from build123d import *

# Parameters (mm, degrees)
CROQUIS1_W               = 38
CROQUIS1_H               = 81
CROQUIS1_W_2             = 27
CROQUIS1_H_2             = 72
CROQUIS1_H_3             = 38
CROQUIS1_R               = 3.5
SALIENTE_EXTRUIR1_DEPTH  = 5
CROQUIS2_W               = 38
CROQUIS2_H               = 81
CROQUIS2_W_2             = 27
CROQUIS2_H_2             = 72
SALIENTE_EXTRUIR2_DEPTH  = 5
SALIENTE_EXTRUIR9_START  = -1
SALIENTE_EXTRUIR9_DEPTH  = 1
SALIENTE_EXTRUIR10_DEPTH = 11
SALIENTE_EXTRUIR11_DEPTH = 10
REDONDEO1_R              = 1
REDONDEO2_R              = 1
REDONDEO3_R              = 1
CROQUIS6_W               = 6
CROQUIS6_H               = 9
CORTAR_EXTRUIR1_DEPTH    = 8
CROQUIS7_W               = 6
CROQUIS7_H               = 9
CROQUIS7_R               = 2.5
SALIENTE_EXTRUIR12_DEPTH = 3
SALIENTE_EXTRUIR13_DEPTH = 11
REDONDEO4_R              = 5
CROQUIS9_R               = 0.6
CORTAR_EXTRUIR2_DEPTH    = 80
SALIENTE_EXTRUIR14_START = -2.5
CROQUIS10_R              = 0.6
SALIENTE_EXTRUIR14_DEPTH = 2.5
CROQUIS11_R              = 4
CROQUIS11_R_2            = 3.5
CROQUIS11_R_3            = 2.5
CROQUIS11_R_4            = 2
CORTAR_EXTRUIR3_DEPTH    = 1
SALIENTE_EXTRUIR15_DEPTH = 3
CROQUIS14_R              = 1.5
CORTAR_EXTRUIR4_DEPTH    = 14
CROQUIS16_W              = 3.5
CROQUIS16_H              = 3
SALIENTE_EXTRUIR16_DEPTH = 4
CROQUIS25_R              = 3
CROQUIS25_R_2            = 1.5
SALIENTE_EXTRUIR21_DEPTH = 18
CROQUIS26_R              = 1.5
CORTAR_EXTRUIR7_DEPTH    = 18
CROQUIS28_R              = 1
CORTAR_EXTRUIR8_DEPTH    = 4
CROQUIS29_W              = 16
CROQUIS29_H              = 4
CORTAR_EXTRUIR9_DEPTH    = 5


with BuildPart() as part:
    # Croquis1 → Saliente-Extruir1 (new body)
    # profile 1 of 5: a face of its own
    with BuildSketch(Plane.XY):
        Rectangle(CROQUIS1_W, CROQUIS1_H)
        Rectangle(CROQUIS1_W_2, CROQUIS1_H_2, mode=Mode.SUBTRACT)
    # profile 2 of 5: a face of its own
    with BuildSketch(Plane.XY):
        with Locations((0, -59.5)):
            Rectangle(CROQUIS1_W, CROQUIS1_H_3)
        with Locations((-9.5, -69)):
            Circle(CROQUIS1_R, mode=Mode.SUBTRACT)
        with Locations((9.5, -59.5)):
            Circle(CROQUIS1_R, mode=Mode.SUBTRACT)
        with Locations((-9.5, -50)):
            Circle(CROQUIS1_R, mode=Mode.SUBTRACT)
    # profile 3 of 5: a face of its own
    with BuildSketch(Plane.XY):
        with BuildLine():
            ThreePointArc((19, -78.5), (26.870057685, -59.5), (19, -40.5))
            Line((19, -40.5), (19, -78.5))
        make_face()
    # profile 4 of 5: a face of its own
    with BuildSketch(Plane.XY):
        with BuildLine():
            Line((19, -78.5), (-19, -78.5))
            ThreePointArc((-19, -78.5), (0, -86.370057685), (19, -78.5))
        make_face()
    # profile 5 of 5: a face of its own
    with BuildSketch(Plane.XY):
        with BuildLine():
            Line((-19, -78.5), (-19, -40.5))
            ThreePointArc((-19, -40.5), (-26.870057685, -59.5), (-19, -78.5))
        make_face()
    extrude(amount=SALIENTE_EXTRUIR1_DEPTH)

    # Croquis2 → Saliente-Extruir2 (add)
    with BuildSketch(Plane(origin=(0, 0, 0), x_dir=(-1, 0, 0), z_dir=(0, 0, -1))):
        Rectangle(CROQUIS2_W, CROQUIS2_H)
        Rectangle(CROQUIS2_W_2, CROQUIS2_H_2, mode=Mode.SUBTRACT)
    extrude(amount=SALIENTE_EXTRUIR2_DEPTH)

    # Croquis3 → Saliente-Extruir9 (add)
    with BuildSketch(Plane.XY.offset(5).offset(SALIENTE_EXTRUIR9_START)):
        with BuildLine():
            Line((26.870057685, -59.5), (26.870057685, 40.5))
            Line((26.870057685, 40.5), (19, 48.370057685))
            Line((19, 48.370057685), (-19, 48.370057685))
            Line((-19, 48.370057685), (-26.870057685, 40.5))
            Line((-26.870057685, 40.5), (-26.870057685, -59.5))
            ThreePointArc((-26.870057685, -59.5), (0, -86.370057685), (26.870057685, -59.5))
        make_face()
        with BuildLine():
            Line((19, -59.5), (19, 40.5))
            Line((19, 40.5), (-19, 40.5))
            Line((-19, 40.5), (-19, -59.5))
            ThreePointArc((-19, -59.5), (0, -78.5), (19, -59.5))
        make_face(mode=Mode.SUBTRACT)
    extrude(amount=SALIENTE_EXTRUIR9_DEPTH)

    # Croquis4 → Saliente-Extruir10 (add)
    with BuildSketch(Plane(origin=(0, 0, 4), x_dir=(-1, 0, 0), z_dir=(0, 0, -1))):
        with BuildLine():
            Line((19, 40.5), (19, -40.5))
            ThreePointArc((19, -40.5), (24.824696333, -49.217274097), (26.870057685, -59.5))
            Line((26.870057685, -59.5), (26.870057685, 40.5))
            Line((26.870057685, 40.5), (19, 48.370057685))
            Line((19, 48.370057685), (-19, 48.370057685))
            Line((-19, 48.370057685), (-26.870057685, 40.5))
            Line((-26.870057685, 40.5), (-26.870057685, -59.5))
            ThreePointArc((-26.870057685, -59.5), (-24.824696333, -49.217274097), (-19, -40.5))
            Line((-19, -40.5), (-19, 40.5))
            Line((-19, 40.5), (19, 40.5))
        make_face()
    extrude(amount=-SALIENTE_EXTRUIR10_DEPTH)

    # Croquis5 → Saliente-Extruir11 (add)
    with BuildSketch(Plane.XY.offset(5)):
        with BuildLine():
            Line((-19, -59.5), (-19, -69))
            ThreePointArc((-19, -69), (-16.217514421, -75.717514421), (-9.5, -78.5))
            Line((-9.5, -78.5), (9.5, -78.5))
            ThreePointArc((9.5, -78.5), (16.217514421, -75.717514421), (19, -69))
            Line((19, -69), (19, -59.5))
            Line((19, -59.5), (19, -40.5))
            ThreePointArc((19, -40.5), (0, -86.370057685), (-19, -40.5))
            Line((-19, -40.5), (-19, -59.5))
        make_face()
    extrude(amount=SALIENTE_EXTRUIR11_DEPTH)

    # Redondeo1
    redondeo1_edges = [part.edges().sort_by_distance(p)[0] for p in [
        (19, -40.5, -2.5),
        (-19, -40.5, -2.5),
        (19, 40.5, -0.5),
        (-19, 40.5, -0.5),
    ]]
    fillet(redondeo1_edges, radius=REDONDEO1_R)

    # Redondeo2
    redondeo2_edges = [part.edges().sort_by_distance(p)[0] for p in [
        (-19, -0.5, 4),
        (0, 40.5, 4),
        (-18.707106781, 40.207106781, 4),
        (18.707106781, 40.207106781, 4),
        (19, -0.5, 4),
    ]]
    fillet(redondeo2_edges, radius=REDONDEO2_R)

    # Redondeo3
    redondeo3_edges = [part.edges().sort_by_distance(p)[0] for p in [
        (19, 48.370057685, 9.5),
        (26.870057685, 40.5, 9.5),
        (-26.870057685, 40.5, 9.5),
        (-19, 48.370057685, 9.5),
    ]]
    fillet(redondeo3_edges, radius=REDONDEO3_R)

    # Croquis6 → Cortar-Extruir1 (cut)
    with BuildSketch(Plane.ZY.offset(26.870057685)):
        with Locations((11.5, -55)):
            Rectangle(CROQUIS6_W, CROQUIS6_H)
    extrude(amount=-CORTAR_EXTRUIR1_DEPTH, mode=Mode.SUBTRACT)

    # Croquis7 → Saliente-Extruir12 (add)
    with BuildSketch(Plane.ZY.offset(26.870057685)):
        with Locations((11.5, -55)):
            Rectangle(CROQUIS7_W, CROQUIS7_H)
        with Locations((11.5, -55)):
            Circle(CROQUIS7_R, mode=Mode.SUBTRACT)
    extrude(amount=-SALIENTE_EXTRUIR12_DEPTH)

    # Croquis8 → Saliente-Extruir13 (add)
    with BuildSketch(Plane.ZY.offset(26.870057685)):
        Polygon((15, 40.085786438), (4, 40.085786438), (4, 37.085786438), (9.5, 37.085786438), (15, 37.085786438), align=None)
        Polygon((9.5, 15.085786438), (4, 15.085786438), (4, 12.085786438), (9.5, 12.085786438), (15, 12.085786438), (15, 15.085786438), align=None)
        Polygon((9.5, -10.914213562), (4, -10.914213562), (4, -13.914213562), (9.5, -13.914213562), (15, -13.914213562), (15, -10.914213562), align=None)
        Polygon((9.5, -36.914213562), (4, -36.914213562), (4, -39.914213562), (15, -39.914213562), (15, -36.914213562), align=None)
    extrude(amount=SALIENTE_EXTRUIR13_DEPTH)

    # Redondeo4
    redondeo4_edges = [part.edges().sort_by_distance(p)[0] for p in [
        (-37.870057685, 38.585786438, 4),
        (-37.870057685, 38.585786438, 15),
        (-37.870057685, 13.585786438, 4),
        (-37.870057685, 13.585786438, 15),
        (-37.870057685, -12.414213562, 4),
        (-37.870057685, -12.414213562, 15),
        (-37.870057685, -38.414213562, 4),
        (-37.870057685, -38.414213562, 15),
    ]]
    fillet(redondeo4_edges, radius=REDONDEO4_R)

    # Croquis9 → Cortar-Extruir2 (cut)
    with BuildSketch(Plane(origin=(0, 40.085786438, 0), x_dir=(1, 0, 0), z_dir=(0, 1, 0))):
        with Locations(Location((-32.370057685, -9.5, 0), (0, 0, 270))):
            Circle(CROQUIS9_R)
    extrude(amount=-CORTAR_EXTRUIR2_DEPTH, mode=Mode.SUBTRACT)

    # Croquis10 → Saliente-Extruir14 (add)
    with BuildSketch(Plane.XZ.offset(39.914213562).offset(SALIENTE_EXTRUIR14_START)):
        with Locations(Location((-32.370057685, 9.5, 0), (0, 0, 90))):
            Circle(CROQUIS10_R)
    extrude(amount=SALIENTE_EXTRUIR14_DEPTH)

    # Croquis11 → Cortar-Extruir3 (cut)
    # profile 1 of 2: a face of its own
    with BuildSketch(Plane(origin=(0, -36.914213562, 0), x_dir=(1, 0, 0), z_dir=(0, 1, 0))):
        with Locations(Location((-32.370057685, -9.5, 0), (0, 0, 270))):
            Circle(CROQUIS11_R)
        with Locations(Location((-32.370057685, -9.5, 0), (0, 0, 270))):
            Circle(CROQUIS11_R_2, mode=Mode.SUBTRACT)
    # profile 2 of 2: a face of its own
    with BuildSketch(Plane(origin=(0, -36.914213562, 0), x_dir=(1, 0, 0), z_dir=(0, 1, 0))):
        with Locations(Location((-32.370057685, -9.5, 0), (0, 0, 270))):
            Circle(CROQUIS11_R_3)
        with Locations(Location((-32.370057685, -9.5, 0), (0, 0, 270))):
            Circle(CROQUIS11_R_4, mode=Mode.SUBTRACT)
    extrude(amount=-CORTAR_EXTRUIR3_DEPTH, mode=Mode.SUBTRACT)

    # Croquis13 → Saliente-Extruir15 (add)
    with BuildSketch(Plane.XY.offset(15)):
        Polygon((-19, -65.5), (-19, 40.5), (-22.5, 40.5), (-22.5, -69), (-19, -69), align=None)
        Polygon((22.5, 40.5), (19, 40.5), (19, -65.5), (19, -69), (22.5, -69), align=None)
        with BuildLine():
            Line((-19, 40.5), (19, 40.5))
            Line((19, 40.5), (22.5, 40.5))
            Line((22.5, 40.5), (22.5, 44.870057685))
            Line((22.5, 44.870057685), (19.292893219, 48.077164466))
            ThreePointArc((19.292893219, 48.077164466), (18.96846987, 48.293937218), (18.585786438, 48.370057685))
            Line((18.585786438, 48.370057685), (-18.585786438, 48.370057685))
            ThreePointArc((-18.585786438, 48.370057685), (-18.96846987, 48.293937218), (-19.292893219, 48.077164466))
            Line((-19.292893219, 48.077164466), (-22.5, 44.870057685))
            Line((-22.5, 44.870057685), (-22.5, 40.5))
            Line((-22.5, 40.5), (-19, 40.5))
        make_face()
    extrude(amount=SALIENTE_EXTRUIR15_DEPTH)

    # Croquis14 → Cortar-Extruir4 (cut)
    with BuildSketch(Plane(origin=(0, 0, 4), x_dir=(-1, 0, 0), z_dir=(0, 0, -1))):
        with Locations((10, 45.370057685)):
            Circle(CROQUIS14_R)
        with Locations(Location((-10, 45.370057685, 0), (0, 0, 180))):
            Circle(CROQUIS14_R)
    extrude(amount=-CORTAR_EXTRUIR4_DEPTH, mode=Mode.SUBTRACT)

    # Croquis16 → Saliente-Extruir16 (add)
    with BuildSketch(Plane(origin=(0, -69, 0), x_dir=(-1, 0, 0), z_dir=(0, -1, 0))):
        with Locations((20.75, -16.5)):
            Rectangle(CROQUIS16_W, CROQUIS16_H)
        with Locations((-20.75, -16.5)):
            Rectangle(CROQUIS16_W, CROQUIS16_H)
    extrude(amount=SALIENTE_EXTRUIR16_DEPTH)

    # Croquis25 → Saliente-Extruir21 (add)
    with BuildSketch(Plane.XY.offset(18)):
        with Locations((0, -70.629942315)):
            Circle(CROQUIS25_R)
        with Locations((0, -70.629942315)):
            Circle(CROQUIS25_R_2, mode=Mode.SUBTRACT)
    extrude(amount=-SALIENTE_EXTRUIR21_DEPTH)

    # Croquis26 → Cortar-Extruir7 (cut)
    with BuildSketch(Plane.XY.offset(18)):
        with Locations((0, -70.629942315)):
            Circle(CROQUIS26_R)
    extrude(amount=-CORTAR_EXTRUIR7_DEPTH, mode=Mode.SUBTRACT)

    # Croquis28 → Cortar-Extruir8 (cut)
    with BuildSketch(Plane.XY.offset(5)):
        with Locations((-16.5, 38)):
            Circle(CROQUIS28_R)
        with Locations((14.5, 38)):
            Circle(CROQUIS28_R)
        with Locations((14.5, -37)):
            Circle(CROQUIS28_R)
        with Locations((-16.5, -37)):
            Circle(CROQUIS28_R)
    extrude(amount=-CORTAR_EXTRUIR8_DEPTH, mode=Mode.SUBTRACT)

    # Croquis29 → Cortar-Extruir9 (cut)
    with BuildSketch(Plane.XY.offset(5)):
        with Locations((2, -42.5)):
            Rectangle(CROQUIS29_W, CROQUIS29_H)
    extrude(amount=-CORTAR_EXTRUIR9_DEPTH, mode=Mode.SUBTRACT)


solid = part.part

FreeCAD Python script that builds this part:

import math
import FreeCAD as App
import Part
import Sketcher


def edges_at(feature, points):
    """Names of the edges that pass closest to the given points."""
    edges = feature.Shape.Edges
    near = lambda p: min(range(len(edges)), key=lambda i: edges[i].distToShape(Part.Vertex(*p))[0])
    return sorted({f"Edge{near(p) + 1}" for p in points})

doc = App.newDocument("Part")
body = doc.addObject("PartDesign::Body", "Body")

sketch1 = doc.addObject("Sketcher::SketchObject", "Sketch")
body.addObject(sketch1)
sketch1.AttachmentSupport = (doc.XY_Plane, [""])
sketch1.MapMode = "FlatFace"
sketch1.addGeometry(Part.LineSegment(App.Vector(-19, 40.5, 0), App.Vector(-19, -40.5, 0)), False)
sketch1.addGeometry(Part.ArcOfCircle(Part.Circle(App.Vector(0, -59.5, 0), App.Vector(0, 0, 1), 26.870058), math.radians(135), math.radians(225)), False)
sketch1.addGeometry(Part.ArcOfCircle(Part.Circle(App.Vector(0, -59.5, 0), App.Vector(0, 0, 1), 26.870058), math.radians(-135), math.radians(-45)), False)
sketch1.addGeometry(Part.ArcOfCircle(Part.Circle(App.Vector(0, -59.5, 0), App.Vector(0, 0, 1), 26.870058), math.radians(-45), math.radians(45)), False)
sketch1.addGeometry(Part.LineSegment(App.Vector(19, -40.5, 0), App.Vector(19, 40.5, 0)), False)
sketch1.addGeometry(Part.LineSegment(App.Vector(19, 40.5, 0), App.Vector(-19, 40.5, 0)), False)
sketch1.addGeometry(Part.LineSegment(App.Vector(13.5, -36, 0), App.Vector(-13.5, -36, 0)), False)
sketch1.addGeometry(Part.LineSegment(App.Vector(-13.5, -36, 0), App.Vector(-13.5, 36, 0)), False)
sketch1.addGeometry(Part.LineSegment(App.Vector(-13.5, 36, 0), App.Vector(13.5, 36, 0)), False)
sketch1.addGeometry(Part.LineSegment(App.Vector(13.5, 36, 0), App.Vector(13.5, -36, 0)), False)
sketch1.addGeometry(Part.Circle(App.Vector(9.5, -59.5, 0), App.Vector(0, 0, 1), 3.5), False)
sketch1.addGeometry(Part.Circle(App.Vector(-9.5, -69, 0), App.Vector(0, 0, 1), 3.5), False)
sketch1.addGeometry(Part.Circle(App.Vector(-9.5, -50, 0), App.Vector(0, 0, 1), 3.5), False)
sketch1.addConstraint(Sketcher.Constraint("Coincident", 0, 2, 1, 1))
sketch1.addConstraint(Sketcher.Constraint("Tangent", 1, 2, 2, 1))
sketch1.addConstraint(Sketcher.Constraint("Tangent", 2, 2, 3, 1))
sketch1.addConstraint(Sketcher.Constraint("Coincident", 3, 2, 4, 1))
sketch1.addConstraint(Sketcher.Constraint("Coincident", 4, 2, 5, 1))
sketch1.addConstraint(Sketcher.Constraint("Coincident", 5, 2, 0, 1))
sketch1.addConstraint(Sketcher.Constraint("Coincident", 6, 2, 7, 1))
sketch1.addConstraint(Sketcher.Constraint("Coincident", 7, 2, 8, 1))
sketch1.addConstraint(Sketcher.Constraint("Coincident", 8, 2, 9, 1))
sketch1.addConstraint(Sketcher.Constraint("Coincident", 9, 2, 6, 1))
sketch1.addConstraint(Sketcher.Constraint("Vertical", 0))
sketch1.addConstraint(Sketcher.Constraint("Vertical", 4))
sketch1.addConstraint(Sketcher.Constraint("Horizontal", 5))
sketch1.addConstraint(Sketcher.Constraint("Horizontal", 6))
sketch1.addConstraint(Sketcher.Constraint("Vertical", 7))
sketch1.addConstraint(Sketcher.Constraint("Horizontal", 8))
sketch1.addConstraint(Sketcher.Constraint("Vertical", 9))
sketch1.addConstraint(Sketcher.Constraint("Coincident", 3, 3, 1, 3))
sketch1.addConstraint(Sketcher.Constraint("Equal", 10, 11))
sketch1.addConstraint(Sketcher.Constraint("Equal", 11, 12))
sketch1.addConstraint(Sketcher.Constraint("Symmetric", 0, 2, 4, 2, -1, 1))
sketch1.addConstraint(Sketcher.Constraint("Symmetric", 6, 2, 8, 2, -1, 1))
sketch1.addConstraint(Sketcher.Constraint("Symmetric", 1, 2, 2, 2, -2))
sketch1.addConstraint(Sketcher.Constraint("Horizontal", 3, 3, 10, 3))
sketch1.addConstraint(Sketcher.Constraint("Vertical", 11, 3, 12, 3))
sketch1.addConstraint(Sketcher.Constraint("Vertical", 0, 2, 1, 2))
sketch1.addConstraint(Sketcher.Constraint("Diameter", 10, 7.0))
sketch1.addConstraint(Sketcher.Constraint("DistanceX", 5, 2, 5, 1, 38.0))
sketch1.addConstraint(Sketcher.Constraint("DistanceX", 6, 2, 6, 1, 27.0))
sketch1.addConstraint(Sketcher.Constraint("DistanceY", 0, 2, 0, 1, 81.0))
sketch1.addConstraint(Sketcher.Constraint("DistanceY", 7, 1, 7, 2, 72.0))
sketch1.addConstraint(Sketcher.Constraint("DistanceY", 11, 3, -1, 1, 69.0))
sketch1.addConstraint(Sketcher.Constraint("DistanceY", 12, 3, -1, 1, 50.0))
sketch1.addConstraint(Sketcher.Constraint("DistanceX", 11, 3, 10, 3, 19.0))
sketch1.addConstraint(Sketcher.Constraint("DistanceY", 1, 3, 0, 2, 19.0))
sketch1.addConstraint(Sketcher.Constraint("DistanceX", 6, 2, 12, 3, 4.0))
pad1 = doc.addObject("PartDesign::Pad", "Pad")
body.addObject(pad1)
pad1.Profile = sketch1
pad1.Length = 5

sketch2 = doc.addObject("Sketcher::SketchObject", "Sketch001")
body.addObject(sketch2)
sketch2.AttachmentSupport = (doc.XY_Plane, [""])
sketch2.MapMode = "FlatFace"
sketch2.addGeometry(Part.LineSegment(App.Vector(19, 40.5, 0), App.Vector(19, -40.5, 0)), False)
sketch2.addGeometry(Part.LineSegment(App.Vector(19, -40.5, 0), App.Vector(-19, -40.5, 0)), False)
sketch2.addGeometry(Part.LineSegment(App.Vector(-19, -40.5, 0), App.Vector(-19, 40.5, 0)), False)
sketch2.addGeometry(Part.LineSegment(App.Vector(-19, 40.5, 0), App.Vector(19, 40.5, 0)), False)
sketch2.addGeometry(Part.LineSegment(App.Vector(-13.5, -36, 0), App.Vector(13.5, -36, 0)), False)
sketch2.addGeometry(Part.LineSegment(App.Vector(13.5, -36, 0), App.Vector(13.5, 36, 0)), False)
sketch2.addGeometry(Part.LineSegment(App.Vector(13.5, 36, 0), App.Vector(-13.5, 36, 0)), False)
sketch2.addGeometry(Part.LineSegment(App.Vector(-13.5, 36, 0), App.Vector(-13.5, -36, 0)), False)
sketch2.addConstraint(Sketcher.Constraint("Coincident", 0, 2, 1, 1))
sketch2.addConstraint(Sketcher.Constraint("Coincident", 1, 2, 2, 1))
sketch2.addConstraint(Sketcher.Constraint("Coincident", 2, 2, 3, 1))
sketch2.addConstraint(Sketcher.Constraint("Coincident", 3, 2, 0, 1))
sketch2.addConstraint(Sketcher.Constraint("Coincident", 4, 2, 5, 1))
sketch2.addConstraint(Sketcher.Constraint("Coincident", 5, 2, 6, 1))
sketch2.addConstraint(Sketcher.Constraint("Coincident", 6, 2, 7, 1))
sketch2.addConstraint(Sketcher.Constraint("Coincident", 7, 2, 4, 1))
sketch2.addConstraint(Sketcher.Constraint("Vertical", 0))
sketch2.addConstraint(Sketcher.Constraint("Horizontal", 1))
sketch2.addConstraint(Sketcher.Constraint("Vertical", 2))
sketch2.addConstraint(Sketcher.Constraint("Horizontal", 3))
sketch2.addConstraint(Sketcher.Constraint("Horizontal", 4))
sketch2.addConstraint(Sketcher.Constraint("Vertical", 5))
sketch2.addConstraint(Sketcher.Constraint("Horizontal", 6))
sketch2.addConstraint(Sketcher.Constraint("Vertical", 7))
sketch2.addConstraint(Sketcher.Constraint("Symmetric", 0, 2, 2, 2, -1, 1))
sketch2.addConstraint(Sketcher.Constraint("Symmetric", 4, 2, 6, 2, -1, 1))
sketch2.addConstraint(Sketcher.Constraint("DistanceX", 1, 2, 1, 1, 38.0))
sketch2.addConstraint(Sketcher.Constraint("DistanceX", 4, 1, 4, 2, 27.0))
sketch2.addConstraint(Sketcher.Constraint("DistanceY", 0, 2, 0, 1, 81.0))
sketch2.addConstraint(Sketcher.Constraint("DistanceY", 5, 1, 5, 2, 72.0))
pad2 = doc.addObject("PartDesign::Pad", "Pad001")
body.addObject(pad2)
pad2.Profile = sketch2
pad2.Length = 5
pad2.Reversed = True

sketch3 = doc.addObject("Sketcher::SketchObject", "Sketch002")
body.addObject(sketch3)
sketch3.AttachmentSupport = (doc.XY_Plane, [""])
sketch3.MapMode = "FlatFace"
sketch3.AttachmentOffset = App.Placement(App.Vector(0, 0, 4), App.Rotation())
sketch3.addGeometry(Part.LineSegment(App.Vector(26.870058, -59.5, 0), App.Vector(26.870058, 40.5, 0)), False)
sketch3.addGeometry(Part.LineSegment(App.Vector(26.870058, 40.5, 0), App.Vector(19, 48.370058, 0)), False)
sketch3.addGeometry(Part.LineSegment(App.Vector(19, 48.370058, 0), App.Vector(-19, 48.370058, 0)), False)
sketch3.addGeometry(Part.LineSegment(App.Vector(-19, 48.370058, 0), App.Vector(-26.870058, 40.5, 0)), False)
sketch3.addGeometry(Part.LineSegment(App.Vector(-26.870058, 40.5, 0), App.Vector(-26.870058, -59.5, 0)), False)
sketch3.addGeometry(Part.ArcOfCircle(Part.Circle(App.Vector(0, -59.5, 0), App.Vector(0, 0, 1), 26.870058), math.radians(180), math.radians(360)), False)
sketch3.addGeometry(Part.LineSegment(App.Vector(19, 40.5, 0), App.Vector(19, -59.5, 0)), False)
sketch3.addGeometry(Part.ArcOfCircle(Part.Circle(App.Vector(0, -59.5, 0), App.Vector(0, 0, 1), 19), math.radians(180), math.radians(360)), False)
sketch3.addGeometry(Part.LineSegment(App.Vector(-19, -59.5, 0), App.Vector(-19, 40.5, 0)), False)
sketch3.addGeometry(Part.LineSegment(App.Vector(-19, 40.5, 0), App.Vector(19, 40.5, 0)), False)
sketch3.addConstraint(Sketcher.Constraint("Coincident", 0, 2, 1, 1))
sketch3.addConstraint(Sketcher.Constraint("Coincident", 1, 2, 2, 1))
sketch3.addConstraint(Sketcher.Constraint("Coincident", 2, 2, 3, 1))
sketch3.addConstraint(Sketcher.Constraint("Coincident", 3, 2, 4, 1))
sketch3.addConstraint(Sketcher.Constraint("Tangent", 4, 2, 5, 1))
sketch3.addConstraint(Sketcher.Constraint("Tangent", 5, 2, 0, 1))
sketch3.addConstraint(Sketcher.Constraint("Tangent", 6, 2, 7, 2))
sketch3.addConstraint(Sketcher.Constraint("Tangent", 7, 1, 8, 1))
sketch3.addConstraint(Sketcher.Constraint("Coincident", 8, 2, 9, 1))
sketch3.addConstraint(Sketcher.Constraint("Coincident", 9, 2, 6, 1))
sketch3.addConstraint(Sketcher.Constraint("Vertical", 0))
sketch3.addConstraint(Sketcher.Constraint("Horizontal", 2))
sketch3.addConstraint(Sketcher.Constraint("Vertical", 4))
sketch3.addConstraint(Sketcher.Constraint("Vertical", 6))
sketch3.addConstraint(Sketcher.Constraint("Vertical", 8))
sketch3.addConstraint(Sketcher.Constraint("Horizontal", 9))
sketch3.addConstraint(Sketcher.Constraint("Coincident", 7, 3, 5, 3))
sketch3.addConstraint(Sketcher.Constraint("Symmetric", 0, 2, 3, 2, -2))
sketch3.addConstraint(Sketcher.Constraint("Perpendicular", 1, 3))
sketch3.addConstraint(Sketcher.Constraint("Horizontal", 3, 2, 8, 2))
sketch3.addConstraint(Sketcher.Constraint("Vertical", 1, 2, 6, 2))
sketch3.addConstraint(Sketcher.Constraint("Vertical", 2, 2, 7, 1))
sketch3.addConstraint(Sketcher.Constraint("Radius", 7, 19.0))
sketch3.addConstraint(Sketcher.Constraint("DistanceY", 0, 1, 0, 2, 100.0))
sketch3.addConstraint(Sketcher.Constraint("DistanceY", 5, 3, -1, 1, 59.5))
sketch3.addConstraint(Sketcher.Constraint("Radius", 5, 26.870058))
pad3 = doc.addObject("PartDesign::Pad", "Pad002")
body.addObject(pad3)
pad3.Profile = sketch3
pad3.Length = 1

sketch4 = doc.addObject("Sketcher::SketchObject", "Sketch003")
body.addObject(sketch4)
sketch4.AttachmentSupport = (doc.XY_Plane, [""])
sketch4.MapMode = "FlatFace"
sketch4.AttachmentOffset = App.Placement(App.Vector(0, 0, 4), App.Rotation())
sketch4.addGeometry(Part.LineSegment(App.Vector(-19, 40.5, 0), App.Vector(-19, -40.5, 0)), False)
sketch4.addGeometry(Part.ArcOfCircle(Part.Circle(App.Vector(0, -59.5, 0), App.Vector(0, 0, 1), 26.870058), math.radians(135), math.radians(180)), False)
sketch4.addGeometry(Part.LineSegment(App.Vector(-26.870058, -59.5, 0), App.Vector(-26.870058, 40.5, 0)), False)
sketch4.addGeometry(Part.LineSegment(App.Vector(-26.870058, 40.5, 0), App.Vector(-19, 48.370058, 0)), False)
sketch4.addGeometry(Part.LineSegment(App.Vector(-19, 48.370058, 0), App.Vector(19, 48.370058, 0)), False)
sketch4.addGeometry(Part.LineSegment(App.Vector(19, 48.370058, 0), App.Vector(26.870058, 40.5, 0)), False)
sketch4.addGeometry(Part.LineSegment(App.Vector(26.870058, 40.5, 0), App.Vector(26.870058, -59.5, 0)), False)
sketch4.addGeometry(Part.ArcOfCircle(Part.Circle(App.Vector(0, -59.5, 0), App.Vector(0, 0, 1), 26.870058), math.radians(0), math.radians(45)), False)
sketch4.addGeometry(Part.LineSegment(App.Vector(19, -40.5, 0), App.Vector(19, 40.5, 0)), False)
sketch4.addGeometry(Part.LineSegment(App.Vector(19, 40.5, 0), App.Vector(-19, 40.5, 0)), False)
sketch4.addConstraint(Sketcher.Constraint("Coincident", 0, 2, 1, 1))
sketch4.addConstraint(Sketcher.Constraint("Tangent", 1, 2, 2, 1))
sketch4.addConstraint(Sketcher.Constraint("Coincident", 2, 2, 3, 1))
sketch4.addConstraint(Sketcher.Constraint("Coincident", 3, 2, 4, 1))
sketch4.addConstraint(Sketcher.Constraint("Coincident", 4, 2, 5, 1))
sketch4.addConstraint(Sketcher.Constraint("Coincident", 5, 2, 6, 1))
sketch4.addConstraint(Sketcher.Constraint("Tangent", 6, 2, 7, 1))
sketch4.addConstraint(Sketcher.Constraint("Coincident", 7, 2, 8, 1))
sketch4.addConstraint(Sketcher.Constraint("Coincident", 8, 2, 9, 1))
sketch4.addConstraint(Sketcher.Constraint("Coincident", 9, 2, 0, 1))
sketch4.addConstraint(Sketcher.Constraint("Vertical", 0))
sketch4.addConstraint(Sketcher.Constraint("Vertical", 2))
sketch4.addConstraint(Sketcher.Constraint("Horizontal", 4))
sketch4.addConstraint(Sketcher.Constraint("Vertical", 6))
sketch4.addConstraint(Sketcher.Constraint("Vertical", 8))
sketch4.addConstraint(Sketcher.Constraint("Horizontal", 9))
sketch4.addConstraint(Sketcher.Constraint("Coincident", 7, 3, 1, 3))
sketch4.addConstraint(Sketcher.Constraint("Equal", 1, 7))
sketch4.addConstraint(Sketcher.Constraint("Symmetric", 0, 2, 8, 2, -1, 1))
sketch4.addConstraint(Sketcher.Constraint("Symmetric", 2, 2, 5, 2, -2))
sketch4.addConstraint(Sketcher.Constraint("Perpendicular", 3, 5))
sketch4.addConstraint(Sketcher.Constraint("Horizontal", 5, 2, 8, 2))
sketch4.addConstraint(Sketcher.Constraint("Vertical", 0, 2, 3, 2))
sketch4.addConstraint(Sketcher.Constraint("Vertical", 4, 2, 7, 2))
sketch4.addConstraint(Sketcher.Constraint("DistanceX", 4, 1, 4, 2, 38.0))
sketch4.addConstraint(Sketcher.Constraint("DistanceY", 0, 2, 0, 1, 81.0))
sketch4.addConstraint(Sketcher.Constraint("DistanceY", 2, 1, 2, 2, 100.0))
pad4 = doc.addObject("PartDesign::Pad", "Pad003")
body.addObject(pad4)
pad4.Profile = sketch4
pad4.Length = 11

sketch5 = doc.addObject("Sketcher::SketchObject", "Sketch004")
body.addObject(sketch5)
sketch5.AttachmentSupport = (doc.XY_Plane, [""])
sketch5.MapMode = "FlatFace"
sketch5.AttachmentOffset = App.Placement(App.Vector(0, 0, 5), App.Rotation())
sketch5.addGeometry(Part.ArcOfCircle(Part.Circle(App.Vector(-9.5, -69, 0), App.Vector(0, 0, 1), 9.5), math.radians(-180), math.radians(-90)), False)
sketch5.addGeometry(Part.LineSegment(App.Vector(-19, -69, 0), App.Vector(-19, -40.5, 0)), False)
sketch5.addGeometry(Part.ArcOfCircle(Part.Circle(App.Vector(0, -59.5, 0), App.Vector(0, 0, 1), 26.870058), math.radians(135), math.radians(405)), False)
sketch5.addGeometry(Part.LineSegment(App.Vector(19, -40.5, 0), App.Vector(19, -69, 0)), False)
sketch5.addGeometry(Part.ArcOfCircle(Part.Circle(App.Vector(9.5, -69, 0), App.Vector(0, 0, 1), 9.5), math.radians(-90), math.radians(0)), False)
sketch5.addGeometry(Part.LineSegment(App.Vector(9.5, -78.5, 0), App.Vector(-9.5, -78.5, 0)), False)
sketch5.addConstraint(Sketcher.Constraint("Tangent", 0, 1, 1, 1))
sketch5.addConstraint(Sketcher.Constraint("Coincident", 1, 2, 2, 1))
sketch5.addConstraint(Sketcher.Constraint("Coincident", 2, 2, 3, 1))
sketch5.addConstraint(Sketcher.Constraint("Tangent", 3, 2, 4, 2))
sketch5.addConstraint(Sketcher.Constraint("Tangent", 4, 1, 5, 1))
sketch5.addConstraint(Sketcher.Constraint("Tangent", 5, 2, 0, 2))
sketch5.addConstraint(Sketcher.Constraint("Vertical", 1))
sketch5.addConstraint(Sketcher.Constraint("Vertical", 3))
sketch5.addConstraint(Sketcher.Constraint("Horizontal", 5))
sketch5.addConstraint(Sketcher.Constraint("Equal", 0, 4))
sketch5.addConstraint(Sketcher.Constraint("Symmetric", 1, 2, 2, 2, -2))
sketch5.addConstraint(Sketcher.Constraint("Radius", 0, 9.5))
sketch5.addConstraint(Sketcher.Constraint("DistanceX", 5, 2, 5, 1, 19.0))
sketch5.addConstraint(Sketcher.Constraint("DistanceY", 1, 1, 1, 2, 28.5))
sketch5.addConstraint(Sketcher.Constraint("DistanceY", 0, 3, -1, 1, 69.0))
sketch5.addConstraint(Sketcher.Constraint("DistanceY", 2, 3, 1, 2, 19.0))
pad5 = doc.addObject("PartDesign::Pad", "Pad004")
body.addObject(pad5)
pad5.Profile = sketch5
pad5.Length = 10
doc.recompute()

fillet = doc.addObject("PartDesign::Fillet", "Fillet")
body.addObject(fillet)
fillet.Base = (pad5, edges_at(pad5, [
    (19, -40.5, -2.5),
    (-19, -40.5, -2.5),
    (19, 40.5, -0.5),
    (-19, 40.5, -0.5),
]))
fillet.Radius = 1
doc.recompute()

fillet2 = doc.addObject("PartDesign::Fillet", "Fillet001")
body.addObject(fillet2)
fillet2.Base = (fillet, edges_at(fillet, [
    (-19, -0.5, 4),
    (0, 40.5, 4),
    (-18.707, 40.207, 4),
    (18.707, 40.207, 4),
    (19, -0.5, 4),
]))
fillet2.Radius = 1
doc.recompute()

fillet3 = doc.addObject("PartDesign::Fillet", "Fillet002")
body.addObject(fillet3)
fillet3.Base = (fillet2, edges_at(fillet2, [
    (19, 48.37, 9.5),
    (26.87, 40.5, 9.5),
    (-26.87, 40.5, 9.5),
    (-19, 48.37, 9.5),
]))
fillet3.Radius = 1

sketch6 = doc.addObject("Sketcher::SketchObject", "Sketch005")
body.addObject(sketch6)
sketch6.AttachmentSupport = (doc.YZ_Plane, [""])
sketch6.MapMode = "FlatFace"
sketch6.AttachmentOffset = App.Placement(App.Vector(0, 0, -26.870058), App.Rotation())
sketch6.addGeometry(Part.LineSegment(App.Vector(-50.5, 8.5, 0), App.Vector(-59.5, 8.5, 0)), False)
sketch6.addGeometry(Part.LineSegment(App.Vector(-59.5, 8.5, 0), App.Vector(-59.5, 14.5, 0)), False)
sketch6.addGeometry(Part.LineSegment(App.Vector(-59.5, 14.5, 0), App.Vector(-50.5, 14.5, 0)), False)
sketch6.addGeometry(Part.LineSegment(App.Vector(-50.5, 14.5, 0), App.Vector(-50.5, 8.5, 0)), False)
sketch6.addConstraint(Sketcher.Constraint("Coincident", 0, 2, 1, 1))
sketch6.addConstraint(Sketcher.Constraint("Coincident", 1, 2, 2, 1))
sketch6.addConstraint(Sketcher.Constraint("Coincident", 2, 2, 3, 1))
sketch6.addConstraint(Sketcher.Constraint("Coincident", 3, 2, 0, 1))
sketch6.addConstraint(Sketcher.Constraint("Horizontal", 0))
sketch6.addConstraint(Sketcher.Constraint("Vertical", 1))
sketch6.addConstraint(Sketcher.Constraint("Horizontal", 2))
sketch6.addConstraint(Sketcher.Constraint("Vertical", 3))
sketch6.addConstraint(Sketcher.Constraint("DistanceX", 0, 2, 0, 1, 9.0))
sketch6.addConstraint(Sketcher.Constraint("DistanceY", 1, 1, 1, 2, 6.0))
sketch6.addConstraint(Sketcher.Constraint("DistanceX", 0, 2, -1, 1, 59.5))
sketch6.addConstraint(Sketcher.Constraint("DistanceY", -1, 1, 0, 2, 8.5))
pocket1 = doc.addObject("PartDesign::Pocket", "Pocket")
body.addObject(pocket1)
pocket1.Profile = sketch6
pocket1.Length = 8
pocket1.Reversed = True

sketch7 = doc.addObject("Sketcher::SketchObject", "Sketch006")
body.addObject(sketch7)
sketch7.AttachmentSupport = (doc.YZ_Plane, [""])
sketch7.MapMode = "FlatFace"
sketch7.AttachmentOffset = App.Placement(App.Vector(0, 0, -26.870058), App.Rotation())
sketch7.addGeometry(Part.LineSegment(App.Vector(-50.5, 8.5, 0), App.Vector(-59.5, 8.5, 0)), False)
sketch7.addGeometry(Part.LineSegment(App.Vector(-59.5, 8.5, 0), App.Vector(-59.5, 14.5, 0)), False)
sketch7.addGeometry(Part.LineSegment(App.Vector(-59.5, 14.5, 0), App.Vector(-50.5, 14.5, 0)), False)
sketch7.addGeometry(Part.LineSegment(App.Vector(-50.5, 14.5, 0), App.Vector(-50.5, 8.5, 0)), False)
sketch7.addGeometry(Part.Circle(App.Vector(-55, 11.5, 0), App.Vector(0, 0, 1), 2.5), False)
sketch7.addConstraint(Sketcher.Constraint("Coincident", 0, 2, 1, 1))
sketch7.addConstraint(Sketcher.Constraint("Coincident", 1, 2, 2, 1))
sketch7.addConstraint(Sketcher.Constraint("Coincident", 2, 2, 3, 1))
sketch7.addConstraint(Sketcher.Constraint("Coincident", 3, 2, 0, 1))
sketch7.addConstraint(Sketcher.Constraint("Horizontal", 0))
sketch7.addConstraint(Sketcher.Constraint("Vertical", 1))
sketch7.addConstraint(Sketcher.Constraint("Horizontal", 2))
sketch7.addConstraint(Sketcher.Constraint("Vertical", 3))
sketch7.addConstraint(Sketcher.Constraint("Diameter", 4, 5.0))
sketch7.addConstraint(Sketcher.Constraint("DistanceX", 0, 2, 0, 1, 9.0))
sketch7.addConstraint(Sketcher.Constraint("DistanceY", 1, 1, 1, 2, 6.0))
sketch7.addConstraint(Sketcher.Constraint("DistanceX", 4, 3, -1, 1, 55.0))
sketch7.addConstraint(Sketcher.Constraint("DistanceY", 0, 2, 4, 3, 3.0))
sketch7.addConstraint(Sketcher.Constraint("DistanceY", -1, 1, 4, 3, 11.5))
sketch7.addConstraint(Sketcher.Constraint("DistanceX", 0, 2, -1, 1, 59.5))
pad6 = doc.addObject("PartDesign::Pad", "Pad005")
body.addObject(pad6)
pad6.Profile = sketch7
pad6.Length = 3

sketch8 = doc.addObject("Sketcher::SketchObject", "Sketch007")
body.addObject(sketch8)
sketch8.AttachmentSupport = (doc.YZ_Plane, [""])
sketch8.MapMode = "FlatFace"
sketch8.AttachmentOffset = App.Placement(App.Vector(0, 0, -26.870058), App.Rotation())
sketch8.addGeometry(Part.LineSegment(App.Vector(40.085786, 15, 0), App.Vector(40.085786, 4, 0)), False)
sketch8.addGeometry(Part.LineSegment(App.Vector(40.085786, 4, 0), App.Vector(37.085786, 4, 0)), False)
sketch8.addGeometry(Part.LineSegment(App.Vector(37.085786, 4, 0), App.Vector(37.085786, 15, 0)), False)
sketch8.addGeometry(Part.LineSegment(App.Vector(37.085786, 15, 0), App.Vector(40.085786, 15, 0)), False)
sketch8.addGeometry(Part.LineSegment(App.Vector(15.085786, 4, 0), App.Vector(12.085786, 4, 0)), False)
sketch8.addGeometry(Part.LineSegment(App.Vector(12.085786, 4, 0), App.Vector(12.085786, 15, 0)), False)
sketch8.addGeometry(Part.LineSegment(App.Vector(12.085786, 15, 0), App.Vector(15.085786, 15, 0)), False)
sketch8.addGeometry(Part.LineSegment(App.Vector(15.085786, 15, 0), App.Vector(15.085786, 4, 0)), False)
sketch8.addGeometry(Part.LineSegment(App.Vector(-10.914214, 4, 0), App.Vector(-13.914214, 4, 0)), False)
sketch8.addGeometry(Part.LineSegment(App.Vector(-13.914214, 4, 0), App.Vector(-13.914214, 15, 0)), False)
sketch8.addGeometry(Part.LineSegment(App.Vector(-13.914214, 15, 0), App.Vector(-10.914214, 15, 0)), False)
sketch8.addGeometry(Part.LineSegment(App.Vector(-10.914214, 15, 0), App.Vector(-10.914214, 4, 0)), False)
sketch8.addGeometry(Part.LineSegment(App.Vector(-36.914214, 4, 0), App.Vector(-39.914214, 4, 0)), False)
sketch8.addGeometry(Part.LineSegment(App.Vector(-39.914214, 4, 0), App.Vector(-39.914214, 15, 0)), False)
sketch8.addGeometry(Part.LineSegment(App.Vector(-39.914214, 15, 0), App.Vector(-36.914214, 15, 0)), False)
sketch8.addGeometry(Part.LineSegment(App.Vector(-36.914214, 15, 0), App.Vector(-36.914214, 4, 0)), False)
sketch8.addConstraint(Sketcher.Constraint("Coincident", 0, 2, 1, 1))
sketch8.addConstraint(Sketcher.Constraint("Coincident", 1, 2, 2, 1))
sketch8.addConstraint(Sketcher.Constraint("Coincident", 2, 2, 3, 1))
sketch8.addConstraint(Sketcher.Constraint("Coincident", 3, 2, 0, 1))
sketch8.addConstraint(Sketcher.Constraint("Coincident", 4, 2, 5, 1))
sketch8.addConstraint(Sketcher.Constraint("Coincident", 5, 2, 6, 1))
sketch8.addConstraint(Sketcher.Constraint("Coincident", 6, 2, 7, 1))
sketch8.addConstraint(Sketcher.Constraint("Coincident", 7, 2, 4, 1))
sketch8.addConstraint(Sketcher.Constraint("Coincident", 8, 2, 9, 1))
sketch8.addConstraint(Sketcher.Constraint("Coincident", 9, 2, 10, 1))
sketch8.addConstraint(Sketcher.Constraint("Coincident", 10, 2, 11, 1))
sketch8.addConstraint(Sketcher.Constraint("Coincident", 11, 2, 8, 1))
sketch8.addConstraint(Sketcher.Constraint("Coincident", 12, 2, 13, 1))
sketch8.addConstraint(Sketcher.Constraint("Coincident", 13, 2, 14, 1))
sketch8.addConstraint(Sketcher.Constraint("Coincident", 14, 2, 15, 1))
sketch8.addConstraint(Sketcher.Constraint("Coincident", 15, 2, 12, 1))
sketch8.addConstraint(Sketcher.Constraint("Vertical", 0))
sketch8.addConstraint(Sketcher.Constraint("Horizontal", 1))
sketch8.addConstraint(Sketcher.Constraint("Vertical", 2))
sketch8.addConstraint(Sketcher.Constraint("Horizontal", 3))
sketch8.addConstraint(Sketcher.Constraint("Horizontal", 4))
sketch8.addConstraint(Sketcher.Constraint("Vertical", 5))
sketch8.addConstraint(Sketcher.Constraint("Horizontal", 6))
sketch8.addConstraint(Sketcher.Constraint("Vertical", 7))
sketch8.addConstraint(Sketcher.Constraint("Horizontal", 8))
sketch8.addConstraint(Sketcher.Constraint("Vertical", 9))
sketch8.addConstraint(Sketcher.Constraint("Horizontal", 10))
sketch8.addConstraint(Sketcher.Constraint("Vertical", 11))
sketch8.addConstraint(Sketcher.Constraint("Horizontal", 12))
sketch8.addConstraint(Sketcher.Constraint("Vertical", 13))
sketch8.addConstraint(Sketcher.Constraint("Horizontal", 14))
sketch8.addConstraint(Sketcher.Constraint("Vertical", 15))
sketch8.addConstraint(Sketcher.Constraint("Horizontal", 1, 2, 4, 2))
sketch8.addConstraint(Sketcher.Constraint("Horizontal", 3, 2, 5, 2))
sketch8.addConstraint(Sketcher.Constraint("Horizontal", 7, 2, 8, 2))
sketch8.addConstraint(Sketcher.Constraint("Horizontal", 6, 2, 9, 2))
sketch8.addConstraint(Sketcher.Constraint("Horizontal", 11, 2, 12, 2))
sketch8.addConstraint(Sketcher.Constraint("Horizontal", 10, 2, 13, 2))
sketch8.addConstraint(Sketcher.Constraint("Equal", 3, 4))
sketch8.addConstraint(Sketcher.Constraint("Equal", 6, 8))
sketch8.addConstraint(Sketcher.Constraint("Equal", 10, 12))
sketch8.addConstraint(Sketcher.Constraint("DistanceX", 1, 2, 1, 1, 3.0))
sketch8.addConstraint(Sketcher.Constraint("DistanceY", 0, 2, 0, 1, 11.0))
sketch8.addConstraint(Sketcher.Constraint("DistanceY", -1, 1, 0, 2, 4.0))
sketch8.addConstraint(Sketcher.Constraint("DistanceX", 4, 2, 1, 2, 25.0))
sketch8.addConstraint(Sketcher.Constraint("DistanceX", 8, 2, 4, 2, 26.0))
sketch8.addConstraint(Sketcher.Constraint("DistanceX", 12, 2, 8, 2, 26.0))
sketch8.addConstraint(Sketcher.Constraint("DistanceX", -1, 1, 0, 2, 40.085786))
pad7 = doc.addObject("PartDesign::Pad", "Pad006")
body.addObject(pad7)
pad7.Profile = sketch8
pad7.Length = 11
pad7.Reversed = True
doc.recompute()

fillet4 = doc.addObject("PartDesign::Fillet", "Fillet003")
body.addObject(fillet4)
fillet4.Base = (pad7, edges_at(pad7, [
    (-37.87, 38.586, 4),
    (-37.87, 38.586, 15),
    (-37.87, 13.586, 4),
    (-37.87, 13.586, 15),
    (-37.87, -12.414, 4),
    (-37.87, -12.414, 15),
    (-37.87, -38.414, 4),
    (-37.87, -38.414, 15),
]))
fillet4.Radius = 5

sketch9 = doc.addObject("Sketcher::SketchObject", "Sketch008")
body.addObject(sketch9)
sketch9.AttachmentSupport = (doc.XZ_Plane, [""])
sketch9.MapMode = "FlatFace"
sketch9.AttachmentOffset = App.Placement(App.Vector(0, 0, -40.085786), App.Rotation())
sketch9.addGeometry(Part.Circle(App.Vector(-32.370058, 9.5, 0), App.Vector(0, 0, 1), 0.6), False)
sketch9.addConstraint(Sketcher.Constraint("Diameter", 0, 1.2))
sketch9.addConstraint(Sketcher.Constraint("DistanceY", -1, 1, 0, 3, 9.5))
sketch9.addConstraint(Sketcher.Constraint("DistanceX", 0, 3, -1, 1, 32.370058))
pocket2 = doc.addObject("PartDesign::Pocket", "Pocket001")
body.addObject(pocket2)
pocket2.Profile = sketch9
pocket2.Length = 80
pocket2.Reversed = True

sketch10 = doc.addObject("Sketcher::SketchObject", "Sketch009")
body.addObject(sketch10)
sketch10.AttachmentSupport = (doc.XZ_Plane, [""])
sketch10.MapMode = "FlatFace"
sketch10.AttachmentOffset = App.Placement(App.Vector(0, 0, 37.414214), App.Rotation())
sketch10.addGeometry(Part.Circle(App.Vector(-32.370058, 9.5, 0), App.Vector(0, 0, 1), 0.6), False)
sketch10.addConstraint(Sketcher.Constraint("Diameter", 0, 1.2))
sketch10.addConstraint(Sketcher.Constraint("DistanceY", -1, 1, 0, 3, 9.5))
sketch10.addConstraint(Sketcher.Constraint("DistanceX", 0, 3, -1, 1, 32.370058))
pad8 = doc.addObject("PartDesign::Pad", "Pad007")
body.addObject(pad8)
pad8.Profile = sketch10
pad8.Length = 2.5

sketch11 = doc.addObject("Sketcher::SketchObject", "Sketch010")
body.addObject(sketch11)
sketch11.AttachmentSupport = (doc.XZ_Plane, [""])
sketch11.MapMode = "FlatFace"
sketch11.AttachmentOffset = App.Placement(App.Vector(0, 0, 36.914214), App.Rotation())
sketch11.addGeometry(Part.Circle(App.Vector(-32.370058, 9.5, 0), App.Vector(0, 0, 1), 4), False)
sketch11.addGeometry(Part.Circle(App.Vector(-32.370058, 9.5, 0), App.Vector(0, 0, 1), 3.5), False)
sketch11.addGeometry(Part.Circle(App.Vector(-32.370058, 9.5, 0), App.Vector(0, 0, 1), 2.5), False)
sketch11.addGeometry(Part.Circle(App.Vector(-32.370058, 9.5, 0), App.Vector(0, 0, 1), 2), False)
sketch11.addConstraint(Sketcher.Constraint("Coincident", 1, 3, 0, 3))
sketch11.addConstraint(Sketcher.Constraint("Coincident", 2, 3, 0, 3))
sketch11.addConstraint(Sketcher.Constraint("Coincident", 3, 3, 0, 3))
sketch11.addConstraint(Sketcher.Constraint("Diameter", 0, 8.0))
sketch11.addConstraint(Sketcher.Constraint("Diameter", 1, 7.0))
sketch11.addConstraint(Sketcher.Constraint("Diameter", 2, 5.0))
sketch11.addConstraint(Sketcher.Constraint("Diameter", 3, 4.0))
sketch11.addConstraint(Sketcher.Constraint("DistanceY", -1, 1, 0, 3, 9.5))
sketch11.addConstraint(Sketcher.Constraint("DistanceX", 0, 3, -1, 1, 32.370058))
pocket3 = doc.addObject("PartDesign::Pocket", "Pocket002")
body.addObject(pocket3)
pocket3.Profile = sketch11
pocket3.Length = 1
pocket3.Reversed = True

sketch12 = doc.addObject("Sketcher::SketchObject", "Sketch011")
body.addObject(sketch12)
sketch12.AttachmentSupport = (doc.XY_Plane, [""])
sketch12.MapMode = "FlatFace"
sketch12.AttachmentOffset = App.Placement(App.Vector(0, 0, 15), App.Rotation())
sketch12.addGeometry(Part.LineSegment(App.Vector(-22.5, -69, 0), App.Vector(-19, -69, 0)), False)
sketch12.addGeometry(Part.LineSegment(App.Vector(-19, -69, 0), App.Vector(-19, 40.5, 0)), False)
sketch12.addGeometry(Part.LineSegment(App.Vector(-19, 40.5, 0), App.Vector(19, 40.5, 0)), False)
sketch12.addGeometry(Part.LineSegment(App.Vector(19, 40.5, 0), App.Vector(19, -69, 0)), False)
sketch12.addGeometry(Part.LineSegment(App.Vector(19, -69, 0), App.Vector(22.5, -69, 0)), False)
sketch12.addGeometry(Part.LineSegment(App.Vector(22.5, -69, 0), App.Vector(22.5, 44.870058, 0)), False)
sketch12.addGeometry(Part.LineSegment(App.Vector(22.5, 44.870058, 0), App.Vector(19.292893, 48.077164, 0)), False)
sketch12.addGeometry(Part.ArcOfCircle(Part.Circle(App.Vector(18.585786, 47.370058, 0), App.Vector(0, 0, 1), 1), math.radians(45), math.radians(90)), False)
sketch12.addGeometry(Part.LineSegment(App.Vector(18.585786, 48.370058, 0), App.Vector(-18.585786, 48.370058, 0)), False)
sketch12.addGeometry(Part.ArcOfCircle(Part.Circle(App.Vector(-18.585786, 47.370058, 0), App.Vector(0, 0, 1), 1), math.radians(90), math.radians(135)), False)
sketch12.addGeometry(Part.LineSegment(App.Vector(-19.292893, 48.077164, 0), App.Vector(-22.5, 44.870058, 0)), False)
sketch12.addGeometry(Part.LineSegment(App.Vector(-22.5, 44.870058, 0), App.Vector(-22.5, -69, 0)), False)
sketch12.addConstraint(Sketcher.Constraint("Coincident", 0, 2, 1, 1))
sketch12.addConstraint(Sketcher.Constraint("Coincident", 1, 2, 2, 1))
sketch12.addConstraint(Sketcher.Constraint("Coincident", 2, 2, 3, 1))
sketch12.addConstraint(Sketcher.Constraint("Coincident", 3, 2, 4, 1))
sketch12.addConstraint(Sketcher.Constraint("Coincident", 4, 2, 5, 1))
sketch12.addConstraint(Sketcher.Constraint("Coincident", 5, 2, 6, 1))
sketch12.addConstraint(Sketcher.Constraint("Tangent", 6, 2, 7, 1))
sketch12.addConstraint(Sketcher.Constraint("Tangent", 7, 2, 8, 1))
sketch12.addConstraint(Sketcher.Constraint("Tangent", 8, 2, 9, 1))
sketch12.addConstraint(Sketcher.Constraint("Tangent", 9, 2, 10, 1))
sketch12.addConstraint(Sketcher.Constraint("Coincident", 10, 2, 11, 1))
sketch12.addConstraint(Sketcher.Constraint("Coincident", 11, 2, 0, 1))
sketch12.addConstraint(Sketcher.Constraint("Horizontal", 0))
sketch12.addConstraint(Sketcher.Constraint("Vertical", 1))
sketch12.addConstraint(Sketcher.Constraint("Horizontal", 2))
sketch12.addConstraint(Sketcher.Constraint("Vertical", 3))
sketch12.addConstraint(Sketcher.Constraint("Horizontal", 4))
sketch12.addConstraint(Sketcher.Constraint("Vertical", 5))
sketch12.addConstraint(Sketcher.Constraint("Horizontal", 8))
sketch12.addConstraint(Sketcher.Constraint("Vertical", 11))
sketch12.addConstraint(Sketcher.Constraint("Equal", 7, 9))
sketch12.addConstraint(Sketcher.Constraint("Symmetric", 0, 2, 3, 2, -2))
sketch12.addConstraint(Sketcher.Constraint("Symmetric", 6, 2, 9, 2, -2))
sketch12.addConstraint(Sketcher.Constraint("Perpendicular", 6, 10))
sketch12.addConstraint(Sketcher.Constraint("Horizontal", 5, 2, 10, 2))
sketch12.addConstraint(Sketcher.Constraint("Radius", 7, 1.0))
sketch12.addConstraint(Sketcher.Constraint("DistanceX", 2, 1, 2, 2, 38.0))
sketch12.addConstraint(Sketcher.Constraint("DistanceX", 0, 1, 0, 2, 3.5))
sketch12.addConstraint(Sketcher.Constraint("DistanceY", 1, 1, 1, 2, 109.5))
sketch12.addConstraint(Sketcher.Constraint("DistanceY", 0, 2, -1, 1, 69.0))
sketch12.addConstraint(Sketcher.Constraint("DistanceY", 5, 2, 7, 3, 2.5))
sketch12.addConstraint(Sketcher.Constraint("DistanceY", 5, 1, 5, 2, 113.870058))
pad9 = doc.addObject("PartDesign::Pad", "Pad008")
body.addObject(pad9)
pad9.Profile = sketch12
pad9.Length = 3

sketch13 = doc.addObject("Sketcher::SketchObject", "Sketch012")
body.addObject(sketch13)
sketch13.AttachmentSupport = (doc.XY_Plane, [""])
sketch13.MapMode = "FlatFace"
sketch13.AttachmentOffset = App.Placement(App.Vector(0, 0, 4), App.Rotation())
sketch13.addGeometry(Part.Circle(App.Vector(-10, 45.370058, 0), App.Vector(0, 0, 1), 1.5), False)
sketch13.addGeometry(Part.Circle(App.Vector(10, 45.370058, 0), App.Vector(0, 0, 1), 1.5), False)
sketch13.addConstraint(Sketcher.Constraint("Equal", 0, 1))
sketch13.addConstraint(Sketcher.Constraint("Symmetric", 0, 3, 1, 3, -2))
sketch13.addConstraint(Sketcher.Constraint("Diameter", 0, 3.0))
sketch13.addConstraint(Sketcher.Constraint("DistanceX", 0, 3, -1, 1, 10.0))
sketch13.addConstraint(Sketcher.Constraint("DistanceY", -1, 1, 0, 3, 45.370058))
pocket4 = doc.addObject("PartDesign::Pocket", "Pocket003")
body.addObject(pocket4)
pocket4.Profile = sketch13
pocket4.Length = 14
pocket4.Reversed = True

sketch14 = doc.addObject("Sketcher::SketchObject", "Sketch013")
body.addObject(sketch14)
sketch14.AttachmentSupport = (doc.XZ_Plane, [""])
sketch14.MapMode = "FlatFace"
sketch14.AttachmentOffset = App.Placement(App.Vector(0, 0, 69), App.Rotation())
sketch14.addGeometry(Part.LineSegment(App.Vector(-19, 15, 0), App.Vector(-19, 18, 0)), False)
sketch14.addGeometry(Part.LineSegment(App.Vector(-19, 18, 0), App.Vector(-22.5, 18, 0)), False)
sketch14.addGeometry(Part.LineSegment(App.Vector(-22.5, 18, 0), App.Vector(-22.5, 15, 0)), False)
sketch14.addGeometry(Part.LineSegment(App.Vector(-22.5, 15, 0), App.Vector(-19, 15, 0)), False)
sketch14.addGeometry(Part.LineSegment(App.Vector(22.5, 15, 0), App.Vector(22.5, 18, 0)), False)
sketch14.addGeometry(Part.LineSegment(App.Vector(22.5, 18, 0), App.Vector(19, 18, 0)), False)
sketch14.addGeometry(Part.LineSegment(App.Vector(19, 18, 0), App.Vector(19, 15, 0)), False)
sketch14.addGeometry(Part.LineSegment(App.Vector(19, 15, 0), App.Vector(22.5, 15, 0)), False)
sketch14.addConstraint(Sketcher.Constraint("Coincident", 0, 2, 1, 1))
sketch14.addConstraint(Sketcher.Constraint("Coincident", 1, 2, 2, 1))
sketch14.addConstraint(Sketcher.Constraint("Coincident", 2, 2, 3, 1))
sketch14.addConstraint(Sketcher.Constraint("Coincident", 3, 2, 0, 1))
sketch14.addConstraint(Sketcher.Constraint("Coincident", 4, 2, 5, 1))
sketch14.addConstraint(Sketcher.Constraint("Coincident", 5, 2, 6, 1))
sketch14.addConstraint(Sketcher.Constraint("Coincident", 6, 2, 7, 1))
sketch14.addConstraint(Sketcher.Constraint("Coincident", 7, 2, 4, 1))
sketch14.addConstraint(Sketcher.Constraint("Vertical", 0))
sketch14.addConstraint(Sketcher.Constraint("Horizontal", 1))
sketch14.addConstraint(Sketcher.Constraint("Vertical", 2))
sketch14.addConstraint(Sketcher.Constraint("Horizontal", 3))
sketch14.addConstraint(Sketcher.Constraint("Vertical", 4))
sketch14.addConstraint(Sketcher.Constraint("Horizontal", 5))
sketch14.addConstraint(Sketcher.Constraint("Vertical", 6))
sketch14.addConstraint(Sketcher.Constraint("Horizontal", 7))
sketch14.addConstraint(Sketcher.Constraint("Symmetric", 1, 2, 4, 2, -2))
sketch14.addConstraint(Sketcher.Constraint("Symmetric", 3, 2, 6, 2, -2))
sketch14.addConstraint(Sketcher.Constraint("DistanceY", 0, 1, 0, 2, 3.0))
sketch14.addConstraint(Sketcher.Constraint("DistanceX", 1, 2, 1, 1, 3.5))
sketch14.addConstraint(Sketcher.Constraint("DistanceX", 0, 2, -1, 1, 19.0))
sketch14.addConstraint(Sketcher.Constraint("DistanceY", -1, 1, 0, 2, 18.0))
pad10 = doc.addObject("PartDesign::Pad", "Pad009")
body.addObject(pad10)
pad10.Profile = sketch14
pad10.Length = 4

sketch15 = doc.addObject("Sketcher::SketchObject", "Sketch014")
body.addObject(sketch15)
sketch15.AttachmentSupport = (doc.XY_Plane, [""])
sketch15.MapMode = "FlatFace"
sketch15.AttachmentOffset = App.Placement(App.Vector(0, 0, 18), App.Rotation())
sketch15.addGeometry(Part.Circle(App.Vector(0, -70.629942, 0), App.Vector(0, 0, 1), 3), False)
sketch15.addGeometry(Part.Circle(App.Vector(0, -70.629942, 0), App.Vector(0, 0, 1), 1.5), False)
sketch15.addConstraint(Sketcher.Constraint("Coincident", 1, 3, 0, 3))
sketch15.addConstraint(Sketcher.Constraint("PointOnObject", 0, 3, -2))
sketch15.addConstraint(Sketcher.Constraint("Diameter", 0, 6.0))
sketch15.addConstraint(Sketcher.Constraint("Diameter", 1, 3.0))
sketch15.addConstraint(Sketcher.Constraint("DistanceY", 0, 3, -1, 1, 70.629942))
pad11 = doc.addObject("PartDesign::Pad", "Pad010")
body.addObject(pad11)
pad11.Profile = sketch15
pad11.Length = 18
pad11.Reversed = True

sketch16 = doc.addObject("Sketcher::SketchObject", "Sketch015")
body.addObject(sketch16)
sketch16.AttachmentSupport = (doc.XY_Plane, [""])
sketch16.MapMode = "FlatFace"
sketch16.AttachmentOffset = App.Placement(App.Vector(0, 0, 18), App.Rotation())
sketch16.addGeometry(Part.Circle(App.Vector(0, -70.629942, 0), App.Vector(0, 0, 1), 1.5), False)
sketch16.addConstraint(Sketcher.Constraint("PointOnObject", 0, 3, -2))
sketch16.addConstraint(Sketcher.Constraint("Diameter", 0, 3.0))
sketch16.addConstraint(Sketcher.Constraint("DistanceY", 0, 3, -1, 1, 70.629942))
pocket5 = doc.addObject("PartDesign::Pocket", "Pocket004")
body.addObject(pocket5)
pocket5.Profile = sketch16
pocket5.Length = 18

sketch17 = doc.addObject("Sketcher::SketchObject", "Sketch016")
body.addObject(sketch17)
sketch17.AttachmentSupport = (doc.XY_Plane, [""])
sketch17.MapMode = "FlatFace"
sketch17.AttachmentOffset = App.Placement(App.Vector(0, 0, 5), App.Rotation())
sketch17.addGeometry(Part.Circle(App.Vector(-16.5, 38, 0), App.Vector(0, 0, 1), 1), False)
sketch17.addGeometry(Part.Circle(App.Vector(14.5, 38, 0), App.Vector(0, 0, 1), 1), False)
sketch17.addGeometry(Part.Circle(App.Vector(14.5, -37, 0), App.Vector(0, 0, 1), 1), False)
sketch17.addGeometry(Part.Circle(App.Vector(-16.5, -37, 0), App.Vector(0, 0, 1), 1), False)
sketch17.addConstraint(Sketcher.Constraint("Equal", 0, 1))
sketch17.addConstraint(Sketcher.Constraint("Equal", 1, 2))
sketch17.addConstraint(Sketcher.Constraint("Equal", 2, 3))
sketch17.addConstraint(Sketcher.Constraint("Horizontal", 0, 3, 1, 3))
sketch17.addConstraint(Sketcher.Constraint("Horizontal", 2, 3, 3, 3))
sketch17.addConstraint(Sketcher.Constraint("Vertical", 1, 3, 2, 3))
sketch17.addConstraint(Sketcher.Constraint("Vertical", 0, 3, 3, 3))
sketch17.addConstraint(Sketcher.Constraint("Diameter", 0, 2.0))
sketch17.addConstraint(Sketcher.Constraint("DistanceY", -1, 1, 0, 3, 38.0))
sketch17.addConstraint(Sketcher.Constraint("DistanceY", 2, 3, -1, 1, 37.0))
sketch17.addConstraint(Sketcher.Constraint("DistanceX", 0, 3, 1, 3, 31.0))
sketch17.addConstraint(Sketcher.Constraint("DistanceX", 0, 3, -1, 1, 16.5))
pocket6 = doc.addObject("PartDesign::Pocket", "Pocket005")
body.addObject(pocket6)
pocket6.Profile = sketch17
pocket6.Length = 4

sketch18 = doc.addObject("Sketcher::SketchObject", "Sketch017")
body.addObject(sketch18)
sketch18.AttachmentSupport = (doc.XY_Plane, [""])
sketch18.MapMode = "FlatFace"
sketch18.AttachmentOffset = App.Placement(App.Vector(0, 0, 5), App.Rotation())
sketch18.addGeometry(Part.LineSegment(App.Vector(-6, -40.5, 0), App.Vector(-6, -44.5, 0)), False)
sketch18.addGeometry(Part.LineSegment(App.Vector(-6, -44.5, 0), App.Vector(10, -44.5, 0)), False)
sketch18.addGeometry(Part.LineSegment(App.Vector(10, -44.5, 0), App.Vector(10, -40.5, 0)), False)
sketch18.addGeometry(Part.LineSegment(App.Vector(10, -40.5, 0), App.Vector(-6, -40.5, 0)), False)
sketch18.addConstraint(Sketcher.Constraint("Coincident", 0, 2, 1, 1))
sketch18.addConstraint(Sketcher.Constraint("Coincident", 1, 2, 2, 1))
sketch18.addConstraint(Sketcher.Constraint("Coincident", 2, 2, 3, 1))
sketch18.addConstraint(Sketcher.Constraint("Coincident", 3, 2, 0, 1))
sketch18.addConstraint(Sketcher.Constraint("Vertical", 0))
sketch18.addConstraint(Sketcher.Constraint("Horizontal", 1))
sketch18.addConstraint(Sketcher.Constraint("Vertical", 2))
sketch18.addConstraint(Sketcher.Constraint("Horizontal", 3))
sketch18.addConstraint(Sketcher.Constraint("DistanceX", 1, 1, 1, 2, 16.0))
sketch18.addConstraint(Sketcher.Constraint("DistanceY", 0, 2, 0, 1, 4.0))
sketch18.addConstraint(Sketcher.Constraint("DistanceX", 0, 2, -1, 1, 6.0))
sketch18.addConstraint(Sketcher.Constraint("DistanceY", 0, 2, -1, 1, 44.5))
pocket7 = doc.addObject("PartDesign::Pocket", "Pocket006")
body.addObject(pocket7)
pocket7.Profile = sketch18
pocket7.Length = 5

doc.recompute()
